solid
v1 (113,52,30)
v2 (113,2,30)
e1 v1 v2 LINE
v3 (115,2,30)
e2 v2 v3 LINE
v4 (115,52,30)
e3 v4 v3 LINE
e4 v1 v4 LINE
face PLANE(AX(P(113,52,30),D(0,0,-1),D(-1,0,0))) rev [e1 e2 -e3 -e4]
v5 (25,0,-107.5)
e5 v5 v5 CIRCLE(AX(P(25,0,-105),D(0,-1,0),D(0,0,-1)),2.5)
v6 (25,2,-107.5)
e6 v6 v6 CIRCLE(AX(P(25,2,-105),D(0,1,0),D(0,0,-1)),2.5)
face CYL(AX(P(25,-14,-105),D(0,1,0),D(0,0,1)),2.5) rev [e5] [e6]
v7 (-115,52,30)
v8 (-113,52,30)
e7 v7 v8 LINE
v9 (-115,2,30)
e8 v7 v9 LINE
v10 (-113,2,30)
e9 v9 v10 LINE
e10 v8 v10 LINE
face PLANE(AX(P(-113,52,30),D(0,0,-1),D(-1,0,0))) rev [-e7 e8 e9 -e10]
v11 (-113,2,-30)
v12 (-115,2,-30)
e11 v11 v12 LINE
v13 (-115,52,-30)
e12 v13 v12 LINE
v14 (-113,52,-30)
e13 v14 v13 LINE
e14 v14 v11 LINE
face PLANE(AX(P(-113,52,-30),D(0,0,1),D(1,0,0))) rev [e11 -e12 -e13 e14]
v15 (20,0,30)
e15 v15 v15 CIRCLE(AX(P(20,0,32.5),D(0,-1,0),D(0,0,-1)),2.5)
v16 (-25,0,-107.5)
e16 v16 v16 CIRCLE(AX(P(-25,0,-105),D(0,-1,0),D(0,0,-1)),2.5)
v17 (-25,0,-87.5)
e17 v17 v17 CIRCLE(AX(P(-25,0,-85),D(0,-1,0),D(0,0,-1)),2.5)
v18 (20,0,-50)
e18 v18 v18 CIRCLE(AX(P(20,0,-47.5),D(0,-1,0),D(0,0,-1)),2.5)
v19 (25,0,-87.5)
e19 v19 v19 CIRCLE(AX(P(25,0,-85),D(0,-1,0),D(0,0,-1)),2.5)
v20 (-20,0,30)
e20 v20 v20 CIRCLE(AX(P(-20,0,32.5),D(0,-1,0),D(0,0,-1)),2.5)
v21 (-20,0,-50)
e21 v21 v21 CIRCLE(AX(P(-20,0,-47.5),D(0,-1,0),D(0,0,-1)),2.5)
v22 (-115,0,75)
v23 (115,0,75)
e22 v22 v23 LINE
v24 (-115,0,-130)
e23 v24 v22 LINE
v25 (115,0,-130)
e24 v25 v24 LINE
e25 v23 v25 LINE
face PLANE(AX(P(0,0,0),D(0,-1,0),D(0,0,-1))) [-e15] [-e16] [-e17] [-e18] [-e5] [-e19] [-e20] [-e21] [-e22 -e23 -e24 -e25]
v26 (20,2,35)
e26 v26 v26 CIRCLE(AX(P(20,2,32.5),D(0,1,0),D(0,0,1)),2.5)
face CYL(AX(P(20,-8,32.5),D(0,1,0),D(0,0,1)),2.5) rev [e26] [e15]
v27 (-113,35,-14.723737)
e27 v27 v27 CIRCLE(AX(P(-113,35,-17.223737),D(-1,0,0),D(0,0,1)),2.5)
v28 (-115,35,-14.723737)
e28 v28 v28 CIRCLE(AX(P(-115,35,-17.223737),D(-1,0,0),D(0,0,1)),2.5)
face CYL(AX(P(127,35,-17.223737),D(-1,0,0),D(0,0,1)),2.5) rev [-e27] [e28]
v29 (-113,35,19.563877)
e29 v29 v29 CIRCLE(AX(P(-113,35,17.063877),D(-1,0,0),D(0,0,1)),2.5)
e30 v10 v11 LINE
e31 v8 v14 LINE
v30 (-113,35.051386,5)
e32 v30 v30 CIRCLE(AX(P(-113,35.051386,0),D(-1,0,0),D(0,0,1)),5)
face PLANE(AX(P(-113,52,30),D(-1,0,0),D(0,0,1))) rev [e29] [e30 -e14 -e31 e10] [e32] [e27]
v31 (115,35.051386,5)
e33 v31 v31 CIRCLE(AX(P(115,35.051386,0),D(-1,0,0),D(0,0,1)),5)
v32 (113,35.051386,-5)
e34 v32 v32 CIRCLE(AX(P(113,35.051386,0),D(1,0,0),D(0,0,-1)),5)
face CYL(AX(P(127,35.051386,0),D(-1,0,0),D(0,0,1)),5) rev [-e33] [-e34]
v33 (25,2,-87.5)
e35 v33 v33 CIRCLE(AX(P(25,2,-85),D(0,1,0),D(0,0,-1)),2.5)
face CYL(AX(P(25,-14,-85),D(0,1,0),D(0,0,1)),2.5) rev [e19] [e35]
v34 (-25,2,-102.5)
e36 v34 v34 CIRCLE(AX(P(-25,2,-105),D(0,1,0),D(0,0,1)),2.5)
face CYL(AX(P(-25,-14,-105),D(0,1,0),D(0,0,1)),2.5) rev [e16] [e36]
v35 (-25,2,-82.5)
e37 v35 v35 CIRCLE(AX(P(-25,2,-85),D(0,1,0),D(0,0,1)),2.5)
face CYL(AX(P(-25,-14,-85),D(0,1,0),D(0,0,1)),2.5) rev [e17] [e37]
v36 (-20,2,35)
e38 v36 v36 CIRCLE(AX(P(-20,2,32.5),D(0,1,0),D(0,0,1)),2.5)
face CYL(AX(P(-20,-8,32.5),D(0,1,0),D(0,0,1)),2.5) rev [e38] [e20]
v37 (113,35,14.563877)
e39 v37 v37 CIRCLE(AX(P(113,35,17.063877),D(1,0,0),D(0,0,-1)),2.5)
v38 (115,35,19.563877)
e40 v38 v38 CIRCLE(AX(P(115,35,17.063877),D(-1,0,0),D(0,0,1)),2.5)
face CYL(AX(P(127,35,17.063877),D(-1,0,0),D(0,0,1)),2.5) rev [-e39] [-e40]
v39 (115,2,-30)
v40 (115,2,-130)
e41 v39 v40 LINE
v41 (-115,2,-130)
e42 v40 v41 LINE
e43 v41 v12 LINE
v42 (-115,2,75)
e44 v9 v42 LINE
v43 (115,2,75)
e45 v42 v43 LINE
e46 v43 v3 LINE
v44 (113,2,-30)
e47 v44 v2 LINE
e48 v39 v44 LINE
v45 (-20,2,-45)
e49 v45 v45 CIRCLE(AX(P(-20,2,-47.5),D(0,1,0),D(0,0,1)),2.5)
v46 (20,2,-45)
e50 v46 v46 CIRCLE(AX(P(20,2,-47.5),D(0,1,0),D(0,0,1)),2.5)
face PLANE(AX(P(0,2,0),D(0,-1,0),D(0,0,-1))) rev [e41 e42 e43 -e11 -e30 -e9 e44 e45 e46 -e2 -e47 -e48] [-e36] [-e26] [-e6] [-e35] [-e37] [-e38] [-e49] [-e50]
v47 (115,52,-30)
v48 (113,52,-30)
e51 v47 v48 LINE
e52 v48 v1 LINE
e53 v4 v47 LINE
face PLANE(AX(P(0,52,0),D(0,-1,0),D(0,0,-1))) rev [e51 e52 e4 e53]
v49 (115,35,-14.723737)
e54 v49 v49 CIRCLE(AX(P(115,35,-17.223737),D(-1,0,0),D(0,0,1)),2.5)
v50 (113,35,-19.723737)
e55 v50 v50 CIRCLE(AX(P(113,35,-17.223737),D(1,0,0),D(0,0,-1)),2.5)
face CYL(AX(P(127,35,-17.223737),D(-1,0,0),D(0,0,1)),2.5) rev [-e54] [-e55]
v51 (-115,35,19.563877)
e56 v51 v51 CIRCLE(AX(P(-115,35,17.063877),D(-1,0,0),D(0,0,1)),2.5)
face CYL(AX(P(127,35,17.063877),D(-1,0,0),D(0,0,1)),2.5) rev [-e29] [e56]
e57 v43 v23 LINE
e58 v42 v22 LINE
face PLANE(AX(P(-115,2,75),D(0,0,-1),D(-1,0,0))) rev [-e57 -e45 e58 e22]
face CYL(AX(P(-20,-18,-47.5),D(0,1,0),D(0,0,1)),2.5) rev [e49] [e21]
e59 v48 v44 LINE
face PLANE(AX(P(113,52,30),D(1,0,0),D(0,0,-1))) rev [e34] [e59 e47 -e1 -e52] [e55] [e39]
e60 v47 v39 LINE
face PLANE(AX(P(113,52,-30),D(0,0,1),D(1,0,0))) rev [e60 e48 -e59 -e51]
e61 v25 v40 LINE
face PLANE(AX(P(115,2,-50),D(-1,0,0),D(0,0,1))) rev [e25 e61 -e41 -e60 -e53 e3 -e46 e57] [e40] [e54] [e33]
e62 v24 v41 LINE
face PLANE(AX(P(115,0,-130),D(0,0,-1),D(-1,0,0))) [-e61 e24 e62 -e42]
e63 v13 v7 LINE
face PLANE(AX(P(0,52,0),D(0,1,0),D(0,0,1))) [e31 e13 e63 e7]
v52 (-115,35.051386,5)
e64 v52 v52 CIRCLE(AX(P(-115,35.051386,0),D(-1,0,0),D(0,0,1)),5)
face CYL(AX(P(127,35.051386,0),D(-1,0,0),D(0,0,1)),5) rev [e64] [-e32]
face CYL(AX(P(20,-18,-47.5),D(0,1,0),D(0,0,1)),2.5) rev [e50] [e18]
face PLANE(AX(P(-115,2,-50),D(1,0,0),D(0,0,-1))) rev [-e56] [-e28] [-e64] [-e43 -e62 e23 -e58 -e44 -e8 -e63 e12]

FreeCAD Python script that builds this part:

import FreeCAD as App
import Part
import Sketcher

doc = App.newDocument("Part")
params = doc.addObject("Spreadsheet::Sheet", "Params")
for row, (alias, value) in enumerate([
    ("sketch1_width", "230 mm"),
    ("sketch1_height", "155 mm"),
    ("pad1_length", "2 mm"),
    ("sketch2_width", "2 mm"),
    ("sketch2_height", "60 mm"),
    ("pad2_length", "50 mm"),
    ("sketch3_diameter", "5 mm"),
    ("pocket1_length", "20 mm"),
    ("sketch4_diameter", "5 mm"),
    ("pocket2_length", "10 mm"),
    ("sketch5_width", "230 mm"),
    ("sketch5_height", "50 mm"),
    ("pad3_length", "2 mm"),
    ("sketch6_diameter", "5 mm"),
    ("pocket3_length", "16 mm"),
    ("sketch7_diameter", "10 mm"),
    ("pocket4_length", "242 mm"),
    ("sketch8_diameter", "5 mm"),
    ("pocket5_length", "242 mm"),
], start=1):
    params.set(f"A{row}", alias)
    params.set(f"B{row}", "=" + value)
    params.setAlias(f"B{row}", alias)

body = doc.addObject("PartDesign::Body", "Body")

# Sketch on XZ plane
sketch1 = body.newObject("Sketcher::SketchObject", "Sketch")
sketch1.AttachmentSupport = (doc.getObject("XZ_Plane"), [""])
sketch1.MapMode = "FlatFace"
sketch1.addGeometry(Part.LineSegment(App.Vector(115, -80, 0), App.Vector(-115, -80, 0)), False)
sketch1.addGeometry(Part.LineSegment(App.Vector(-115, -80, 0), App.Vector(-115, 75, 0)), False)
sketch1.addGeometry(Part.LineSegment(App.Vector(-115, 75, 0), App.Vector(115, 75, 0)), False)
sketch1.addGeometry(Part.LineSegment(App.Vector(115, 75, 0), App.Vector(115, -80, 0)), False)
sketch1.addConstraint(Sketcher.Constraint("Coincident", 0, 2, 1, 1))
sketch1.addConstraint(Sketcher.Constraint("Coincident", 1, 2, 2, 1))
sketch1.addConstraint(Sketcher.Constraint("Coincident", 2, 2, 3, 1))
sketch1.addConstraint(Sketcher.Constraint("Coincident", 3, 2, 0, 1))
sketch1.addConstraint(Sketcher.Constraint("Horizontal", 0))
sketch1.addConstraint(Sketcher.Constraint("Vertical", 1))
sketch1.addConstraint(Sketcher.Constraint("Horizontal", 2))
sketch1.addConstraint(Sketcher.Constraint("Vertical", 3))
sketch1.addConstraint(Sketcher.Constraint("DistanceX", 0, 2, 0, 1, 230.0))
sketch1.addConstraint(Sketcher.Constraint("DistanceY", 1, 1, 1, 2, 155.0))
sketch1.addConstraint(Sketcher.Constraint("DistanceX", 0, 2, -1, 1, 115.0))
sketch1.addConstraint(Sketcher.Constraint("DistanceY", 0, 2, -1, 1, 80.0))
sketch1.setExpression("Constraints[8]", "Params.sketch1_width")
sketch1.setExpression("Constraints[9]", "Params.sketch1_height")
pad1 = body.newObject("PartDesign::Pad", "Pad")
pad1.Profile = sketch1
pad1.setExpression("Length", "Params.pad1_length")
pad1.Reversed = True

# Sketch on XZ plane
sketch2 = body.newObject("Sketcher::SketchObject", "Sketch001")
sketch2.AttachmentSupport = (doc.getObject("XZ_Plane"), [""])
sketch2.MapMode = "FlatFace"
sketch2.AttachmentOffset = App.Placement(App.Vector(0, 0, -2), App.Rotation())
sketch2.addGeometry(Part.LineSegment(App.Vector(-115, -30, 0), App.Vector(-115, 30, 0)), False)
sketch2.addGeometry(Part.LineSegment(App.Vector(-115, 30, 0), App.Vector(-113, 30, 0)), False)
sketch2.addGeometry(Part.LineSegment(App.Vector(-113, 30, 0), App.Vector(-113, -30, 0)), False)
sketch2.addGeometry(Part.LineSegment(App.Vector(-113, -30, 0), App.Vector(-115, -30, 0)), False)
sketch2.addGeometry(Part.LineSegment(App.Vector(113, -30, 0), App.Vector(113, 30, 0)), False)
sketch2.addGeometry(Part.LineSegment(App.Vector(113, 30, 0), App.Vector(115, 30, 0)), False)
sketch2.addGeometry(Part.LineSegment(App.Vector(115, 30, 0), App.Vector(115, -30, 0)), False)
sketch2.addGeometry(Part.LineSegment(App.Vector(115, -30, 0), App.Vector(113, -30, 0)), False)
sketch2.addConstraint(Sketcher.Constraint("Coincident", 0, 2, 1, 1))
sketch2.addConstraint(Sketcher.Constraint("Coincident", 1, 2, 2, 1))
sketch2.addConstraint(Sketcher.Constraint("Coincident", 2, 2, 3, 1))
sketch2.addConstraint(Sketcher.Constraint("Coincident", 3, 2, 0, 1))
sketch2.addConstraint(Sketcher.Constraint("Coincident", 4, 2, 5, 1))
sketch2.addConstraint(Sketcher.Constraint("Coincident", 5, 2, 6, 1))
sketch2.addConstraint(Sketcher.Constraint("Coincident", 6, 2, 7, 1))
sketch2.addConstraint(Sketcher.Constraint("Coincident", 7, 2, 4, 1))
sketch2.addConstraint(Sketcher.Constraint("Vertical", 0))
sketch2.addConstraint(Sketcher.Constraint("Horizontal", 1))
sketch2.addConstraint(Sketcher.Constraint("Vertical", 2))
sketch2.addConstraint(Sketcher.Constraint("Horizontal", 3))
sketch2.addConstraint(Sketcher.Constraint("Vertical", 4))
sketch2.addConstraint(Sketcher.Constraint("Horizontal", 5))
sketch2.addConstraint(Sketcher.Constraint("Vertical", 6))
sketch2.addConstraint(Sketcher.Constraint("Horizontal", 7))
sketch2.addConstraint(Sketcher.Constraint("Symmetric", 2, 2, 4, 2, -1, 1))
sketch2.addConstraint(Sketcher.Constraint("Symmetric", 0, 2, 6, 2, -1, 1))
sketch2.addConstraint(Sketcher.Constraint("Horizontal", 1, 2, 4, 2))
sketch2.addConstraint(Sketcher.Constraint("DistanceX", 1, 1, 1, 2, 2.0))
sketch2.addConstraint(Sketcher.Constraint("DistanceY", 0, 1, 0, 2, 60.0))
sketch2.addConstraint(Sketcher.Constraint("DistanceX", 0, 2, -1, 1, 115.0))
sketch2.setExpression("Constraints[19]", "Params.sketch2_width")
sketch2.setExpression("Constraints[20]", "Params.sketch2_height")
pad2 = body.newObject("PartDesign::Pad", "Pad001")
pad2.Profile = sketch2
pad2.setExpression("Length", "Params.pad2_length")
pad2.Reversed = True

# Sketch on XZ plane
sketch3 = body.newObject("Sketcher::SketchObject", "Sketch002")
sketch3.AttachmentSupport = (doc.getObject("XZ_Plane"), [""])
sketch3.MapMode = "FlatFace"
sketch3.AttachmentOffset = App.Placement(App.Vector(0, 0, -2), App.Rotation())
sketch3.addGeometry(Part.Circle(App.Vector(-20, -47.5, 0), App.Vector(0, 0, 1), 2.5), False)
sketch3.addGeometry(Part.Circle(App.Vector(20, -47.5, 0), App.Vector(0, 0, 1), 2.5), False)
sketch3.addConstraint(Sketcher.Constraint("Equal", 0, 1))
sketch3.addConstraint(Sketcher.Constraint("Symmetric", 0, 3, 1, 3, -2))
sketch3.addConstraint(Sketcher.Constraint("Diameter", 0, 5.0))
sketch3.addConstraint(Sketcher.Constraint("DistanceX", 0, 3, -1, 1, 20.0))
sketch3.addConstraint(Sketcher.Constraint("DistanceY", 0, 3, -1, 1, 47.5))
sketch3.setExpression("Constraints[2]", "Params.sketch3_diameter")
pocket1 = body.newObject("PartDesign::Pocket", "Pocket")
pocket1.Profile = sketch3
pocket1.setExpression("Length", "Params.pocket1_length")
pocket1.Reversed = True

# Sketch on XZ plane
sketch4 = body.newObject("Sketcher::SketchObject", "Sketch003")
sketch4.AttachmentSupport = (doc.getObject("XZ_Plane"), [""])
sketch4.MapMode = "FlatFace"
sketch4.AttachmentOffset = App.Placement(App.Vector(0, 0, -2), App.Rotation())
sketch4.addGeometry(Part.Circle(App.Vector(-20, 32.5, 0), App.Vector(0, 0, 1), 2.5), False)
sketch4.addGeometry(Part.Circle(App.Vector(20, 32.5, 0), App.Vector(0, 0, 1), 2.5), False)
sketch4.addConstraint(Sketcher.Constraint("Equal", 0, 1))
sketch4.addConstraint(Sketcher.Constraint("Symmetric", 0, 3, 1, 3, -2))
sketch4.addConstraint(Sketcher.Constraint("Diameter", 0, 5.0))
sketch4.addConstraint(Sketcher.Constraint("DistanceX", 0, 3, -1, 1, 20.0))
sketch4.addConstraint(Sketcher.Constraint("DistanceY", -1, 1, 0, 3, 32.5))
sketch4.setExpression("Constraints[2]", "Params.sketch4_diameter")
pocket2 = body.newObject("PartDesign::Pocket", "Pocket001")
pocket2.Profile = sketch4
pocket2.setExpression("Length", "Params.pocket2_length")
pocket2.Reversed = True

# Sketch on XZ plane
sketch5 = body.newObject("Sketcher::SketchObject", "Sketch004")
sketch5.AttachmentSupport = (doc.getObject("XZ_Plane"), [""])
sketch5.MapMode = "FlatFace"
sketch5.AttachmentOffset = App.Placement(App.Vector(0, 0, -2), App.Rotation())
sketch5.addGeometry(Part.LineSegment(App.Vector(-115, -130, 0), App.Vector(-115, -80, 0)), False)
sketch5.addGeometry(Part.LineSegment(App.Vector(-115, -80, 0), App.Vector(115, -80, 0)), False)
sketch5.addGeometry(Part.LineSegment(App.Vector(115, -80, 0), App.Vector(115, -130, 0)), False)
sketch5.addGeometry(Part.LineSegment(App.Vector(115, -130, 0), App.Vector(-115, -130, 0)), False)
sketch5.addConstraint(Sketcher.Constraint("Coincident", 0, 2, 1, 1))
sketch5.addConstraint(Sketcher.Constraint("Coincident", 1, 2, 2, 1))
sketch5.addConstraint(Sketcher.Constraint("Coincident", 2, 2, 3, 1))
sketch5.addConstraint(Sketcher.Constraint("Coincident", 3, 2, 0, 1))
sketch5.addConstraint(Sketcher.Constraint("Vertical", 0))
sketch5.addConstraint(Sketcher.Constraint("Horizontal", 1))
sketch5.addConstraint(Sketcher.Constraint("Vertical", 2))
sketch5.addConstraint(Sketcher.Constraint("Horizontal", 3))
sketch5.addConstraint(Sketcher.Constraint("DistanceX", 1, 1, 1, 2, 230.0))
sketch5.addConstraint(Sketcher.Constraint("DistanceY", 0, 1, 0, 2, 50.0))
sketch5.addConstraint(Sketcher.Constraint("DistanceX", 0, 2, -1, 1, 115.0))
sketch5.addConstraint(Sketcher.Constraint("DistanceY", 0, 2, -1, 1, 80.0))
sketch5.setExpression("Constraints[8]", "Params.sketch5_width")
sketch5.setExpression("Constraints[9]", "Params.sketch5_height")
pad3 = body.newObject("PartDesign::Pad", "Pad002")
pad3.Profile = sketch5
pad3.setExpression("Length", "Params.pad3_length")

# Sketch on XZ plane
sketch6 = body.newObject("Sketcher::SketchObject", "Sketch005")
sketch6.AttachmentSupport = (doc.getObject("XZ_Plane"), [""])
sketch6.MapMode = "FlatFace"
sketch6.AttachmentOffset = App.Placement(App.Vector(0, 0, -2), App.Rotation())
sketch6.addGeometry(Part.Circle(App.Vector(-25, -85, 0), App.Vector(0, 0, 1), 2.5), False)
sketch6.addGeometry(Part.Circle(App.Vector(-25, -105, 0), App.Vector(0, 0, 1), 2.5), False)
sketch6.addGeometry(Part.Circle(App.Vector(25, -105, 0), App.Vector(0, 0, 1), 2.5), False)
sketch6.addGeometry(Part.Circle(App.Vector(25, -85, 0), App.Vector(0, 0, 1), 2.5), False)
sketch6.addConstraint(Sketcher.Constraint("Equal", 0, 1))
sketch6.addConstraint(Sketcher.Constraint("Equal", 1, 2))
sketch6.addConstraint(Sketcher.Constraint("Equal", 2, 3))
sketch6.addConstraint(Sketcher.Constraint("Symmetric", 1, 3, 2, 3, -2))
sketch6.addConstraint(Sketcher.Constraint("Symmetric", 0, 3, 3, 3, -2))
sketch6.addConstraint(Sketcher.Constraint("Vertical", 0, 3, 1, 3))
sketch6.addConstraint(Sketcher.Constraint("Diameter", 0, 5.0))
sketch6.addConstraint(Sketcher.Constraint("DistanceX", 0, 3, -1, 1, 25.0))
sketch6.addConstraint(Sketcher.Constraint("DistanceY", 0, 3, -1, 1, 85.0))
sketch6.addConstraint(Sketcher.Constraint("DistanceY", 1, 3, -1, 1, 105.0))
sketch6.setExpression("Constraints[6]", "Params.sketch6_diameter")
pocket3 = body.newObject("PartDesign::Pocket", "Pocket002")
pocket3.Profile = sketch6
pocket3.setExpression("Length", "Params.pocket3_length")
pocket3.Reversed = True

# Sketch on YZ plane
sketch7 = body.newObject("Sketcher::SketchObject", "Sketch006")
sketch7.AttachmentSupport = (doc.getObject("YZ_Plane"), [""])
sketch7.MapMode = "FlatFace"
sketch7.AttachmentOffset = App.Placement(App.Vector(0, 0, -115), App.Rotation())
sketch7.addGeometry(Part.Circle(App.Vector(35, 0, 0), App.Vector(0, 0, 1), 5), False)
sketch7.addConstraint(Sketcher.Constraint("PointOnObject", 0, 3, -1))
sketch7.addConstraint(Sketcher.Constraint("Diameter", 0, 10.0))
sketch7.addConstraint(Sketcher.Constraint("DistanceX", -1, 1, 0, 3, 35.051386))
sketch7.setExpression("Constraints[1]", "Params.sketch7_diameter")
pocket4 = body.newObject("PartDesign::Pocket", "Pocket003")
pocket4.Profile = sketch7
pocket4.setExpression("Length", "Params.pocket4_length")
pocket4.Reversed = True

# Sketch on YZ plane
sketch8 = body.newObject("Sketcher::SketchObject", "Sketch007")
sketch8.AttachmentSupport = (doc.getObject("YZ_Plane"), [""])
sketch8.MapMode = "FlatFace"
sketch8.AttachmentOffset = App.Placement(App.Vector(0, 0, -115), App.Rotation())
sketch8.addGeometry(Part.Circle(App.Vector(35, -17.2, 0), App.Vector(0, 0, 1), 2.5), False)
sketch8.addGeometry(Part.Circle(App.Vector(35, 17.1, 0), App.Vector(0, 0, 1), 2.5), False)
sketch8.addConstraint(Sketcher.Constraint("Equal", 0, 1))
sketch8.addConstraint(Sketcher.Constraint("Vertical", 0, 3, 1, 3))
sketch8.addConstraint(Sketcher.Constraint("Diameter", 0, 5.0))
sketch8.addConstraint(Sketcher.Constraint("DistanceX", -1, 1, 0, 3, 35.0))
sketch8.addConstraint(Sketcher.Constraint("DistanceY", 0, 3, -1, 1, 17.223737))
sketch8.addConstraint(Sketcher.Constraint("DistanceY", -1, 1, 1, 3, 17.063877))
sketch8.setExpression("Constraints[2]", "Params.sketch8_diameter")
pocket5 = body.newObject("PartDesign::Pocket", "Pocket004")
pocket5.Profile = sketch8
pocket5.setExpression("Length", "Params.pocket5_length")
pocket5.Reversed = True

doc.recompute()
